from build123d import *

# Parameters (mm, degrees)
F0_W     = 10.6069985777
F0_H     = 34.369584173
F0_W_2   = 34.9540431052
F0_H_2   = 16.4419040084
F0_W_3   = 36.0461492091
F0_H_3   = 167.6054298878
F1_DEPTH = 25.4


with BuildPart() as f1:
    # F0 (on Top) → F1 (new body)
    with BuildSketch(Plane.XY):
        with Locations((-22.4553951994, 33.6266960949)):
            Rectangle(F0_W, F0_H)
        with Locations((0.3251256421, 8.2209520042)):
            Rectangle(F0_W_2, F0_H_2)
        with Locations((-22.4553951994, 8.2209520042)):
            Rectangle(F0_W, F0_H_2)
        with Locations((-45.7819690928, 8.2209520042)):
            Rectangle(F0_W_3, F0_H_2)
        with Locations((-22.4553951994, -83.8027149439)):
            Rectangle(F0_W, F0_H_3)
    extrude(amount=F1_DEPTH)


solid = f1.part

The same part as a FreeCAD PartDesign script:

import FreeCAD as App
import Part
import Sketcher
from FreeCAD import Vector
Q = App.Units.Quantity

doc = App.newDocument("Part")
body = doc.addObject("PartDesign::Body", "Body")

# Sketch on XY plane
sketch1 = doc.addObject("Sketcher::SketchObject", "Sketch")
body.addObject(sketch1)
sketch1.AttachmentSupport = (doc.XY_Plane, [""])
sketch1.MapMode = "FlatFace"
sketch1.addGeometry([
    Part.LineSegment(Vector(-28, 51, 0), Vector(-28, 16, 0)),  # 0
    Part.LineSegment(Vector(-28, 16, 0), Vector(-64, 16, 0)),  # 1
    Part.LineSegment(Vector(-64, 16, 0), Vector(-64, 0, 0)),  # 2
    Part.LineSegment(Vector(-64, 0, 0), Vector(-28, 0, 0)),  # 3
    Part.LineSegment(Vector(-28, 0, 0), Vector(-28, -168, 0)),  # 4
    Part.LineSegment(Vector(-28, -168, 0), Vector(-17, -168, 0)),  # 5
    Part.LineSegment(Vector(-17, -168, 0), Vector(-17, 0, 0)),  # 6
    Part.LineSegment(Vector(-17, 0, 0), Vector(18, 0, 0)),  # 7
    Part.LineSegment(Vector(18, 0, 0), Vector(18, 16, 0)),  # 8
    Part.LineSegment(Vector(18, 16, 0), Vector(-17, 16, 0)),  # 9
    Part.LineSegment(Vector(-17, 16, 0), Vector(-17, 51, 0)),  # 10
    Part.LineSegment(Vector(-17, 51, 0), Vector(-28, 51, 0)),  # 11
], False)
sketch1.addConstraint([
    Sketcher.Constraint("Coincident", 0, 2, 1, 1),
    Sketcher.Constraint("Coincident", 1, 2, 2, 1),
    Sketcher.Constraint("Coincident", 2, 2, 3, 1),
    Sketcher.Constraint("Coincident", 3, 2, 4, 1),
    Sketcher.Constraint("Coincident", 4, 2, 5, 1),
    Sketcher.Constraint("Coincident", 5, 2, 6, 1),
    Sketcher.Constraint("Coincident", 6, 2, 7, 1),
    Sketcher.Constraint("Coincident", 7, 2, 8, 1),
    Sketcher.Constraint("Coincident", 8, 2, 9, 1),
    Sketcher.Constraint("Coincident", 9, 2, 10, 1),
    Sketcher.Constraint("Coincident", 10, 2, 11, 1),
    Sketcher.Constraint("Coincident", 11, 2, 0, 1),
    Sketcher.Constraint("Vertical", 0),
    Sketcher.Constraint("Horizontal", 1),
    Sketcher.Constraint("Vertical", 2),
    Sketcher.Constraint("Horizontal", 3),
    Sketcher.Constraint("Vertical", 4),
    Sketcher.Constraint("Horizontal", 5),
    Sketcher.Constraint("Vertical", 6),
    Sketcher.Constraint("Horizontal", 7),
    Sketcher.Constraint("Vertical", 8),
    Sketcher.Constraint("Horizontal", 9),
    Sketcher.Constraint("Vertical", 10),
    Sketcher.Constraint("Horizontal", 11),
    Sketcher.Constraint("PointOnObject", 2, 2, -1),
    Sketcher.Constraint("PointOnObject", 6, 2, -1),
    Sketcher.Constraint("Horizontal", 1, 2, 8, 2),
    Sketcher.Constraint("Vertical", 0, 2, 3, 2),
    Sketcher.Constraint("Vertical", 6, 2, 9, 2),
    Sketcher.Constraint("DistanceX", 5, 1, 5, 2, Q("10.606999 mm")),
    Sketcher.Constraint("DistanceX", 1, 2, 1, 1, Q("36.046149 mm")),
    Sketcher.Constraint("DistanceY", 4, 2, 4, 1, Q("167.60543 mm")),
    Sketcher.Constraint("DistanceX", 7, 1, 7, 2, Q("34.954043 mm")),
    Sketcher.Constraint("DistanceY", 0, 2, 0, 1, Q("34.369584 mm")),
    Sketcher.Constraint("DistanceY", 2, 2, 2, 1, Q("16.441904 mm")),
    Sketcher.Constraint("DistanceX", 0, 2, -1, 1, Q("27.758894 mm")),
])
pad1 = doc.addObject("PartDesign::Pad", "Pad")
body.addObject(pad1)
pad1.Profile = sketch1
pad1.Length = Q("1 in")

doc.recompute()
